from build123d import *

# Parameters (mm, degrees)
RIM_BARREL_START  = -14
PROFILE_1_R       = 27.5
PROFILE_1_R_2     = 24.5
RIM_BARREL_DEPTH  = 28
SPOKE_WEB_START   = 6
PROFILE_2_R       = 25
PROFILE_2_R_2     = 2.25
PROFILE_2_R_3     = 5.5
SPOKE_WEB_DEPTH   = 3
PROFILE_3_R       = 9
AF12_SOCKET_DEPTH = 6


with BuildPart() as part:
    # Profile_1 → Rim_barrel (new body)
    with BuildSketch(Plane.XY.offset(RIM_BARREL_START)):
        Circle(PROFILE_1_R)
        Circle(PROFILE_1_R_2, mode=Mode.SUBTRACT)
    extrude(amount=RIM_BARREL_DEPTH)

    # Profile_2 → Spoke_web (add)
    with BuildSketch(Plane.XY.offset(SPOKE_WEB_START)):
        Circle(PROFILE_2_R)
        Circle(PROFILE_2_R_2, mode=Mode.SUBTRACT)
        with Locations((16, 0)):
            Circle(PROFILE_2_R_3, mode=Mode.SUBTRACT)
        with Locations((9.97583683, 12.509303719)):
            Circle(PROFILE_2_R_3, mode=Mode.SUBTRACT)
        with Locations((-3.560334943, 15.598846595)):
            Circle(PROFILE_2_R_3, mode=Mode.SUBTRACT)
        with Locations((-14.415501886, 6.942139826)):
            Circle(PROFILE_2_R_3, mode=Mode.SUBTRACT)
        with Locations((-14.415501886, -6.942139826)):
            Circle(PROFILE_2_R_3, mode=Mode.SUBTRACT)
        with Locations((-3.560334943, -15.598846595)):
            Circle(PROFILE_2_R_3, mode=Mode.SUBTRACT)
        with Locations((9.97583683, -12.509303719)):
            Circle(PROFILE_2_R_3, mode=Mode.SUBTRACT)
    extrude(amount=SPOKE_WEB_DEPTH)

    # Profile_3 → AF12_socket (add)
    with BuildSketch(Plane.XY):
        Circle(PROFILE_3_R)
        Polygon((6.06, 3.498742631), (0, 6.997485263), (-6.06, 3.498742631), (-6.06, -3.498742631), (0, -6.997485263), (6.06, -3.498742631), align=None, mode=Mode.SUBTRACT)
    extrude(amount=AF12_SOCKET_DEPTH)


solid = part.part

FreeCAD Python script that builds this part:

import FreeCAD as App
import Part
import Sketcher
Q = App.Units.Quantity


def add_polygon(sketch, points):
    """Adds a closed chain of lines whose ends are joined by coincident constraints."""
    first, n = sketch.GeometryCount, len(points)
    for a, b in zip(points, points[1:] + points[:1]):
        sketch.addGeometry(Part.LineSegment(App.Vector(*a, 0), App.Vector(*b, 0)), False)
    for i in range(n):
        sketch.addConstraint(Sketcher.Constraint("Coincident", first + i, 2, first + (i + 1) % n, 1))

doc = App.newDocument("Part")
body = doc.addObject("PartDesign::Body", "Body")

sketch1 = doc.addObject("Sketcher::SketchObject", "Sketch")
body.addObject(sketch1)
sketch1.AttachmentSupport = (doc.XY_Plane, [""])
sketch1.MapMode = "FlatFace"
sketch1.AttachmentOffset = App.Placement(App.Vector(0, 0, -14), App.Rotation())
sketch1.addGeometry([
    Part.Circle(App.Vector(0, 0, 0), App.Vector(0, 0, 1), 28),
    Part.Circle(App.Vector(0, 0, 0), App.Vector(0, 0, 1), 24),
], False)
sketch1.addConstraint([
    Sketcher.Constraint("Coincident", 0, 3, -1, 1),
    Sketcher.Constraint("Coincident", 1, 3, -1, 1),
    Sketcher.Constraint("Diameter", 0, Q("55 mm")),
    Sketcher.Constraint("Diameter", 1, Q("49 mm")),
])
pad1 = doc.addObject("PartDesign::Pad", "Pad")
body.addObject(pad1)
pad1.Profile = sketch1
pad1.Length = 28

sketch2 = doc.addObject("Sketcher::SketchObject", "Sketch001")
body.addObject(sketch2)
sketch2.AttachmentSupport = (doc.XY_Plane, [""])
sketch2.MapMode = "FlatFace"
sketch2.AttachmentOffset = App.Placement(App.Vector(0, 0, 6), App.Rotation())
sketch2.addGeometry([
    Part.Circle(App.Vector(0, 0, 0), App.Vector(0, 0, 1), 25),
    Part.Circle(App.Vector(-3.6, -15.6, 0), App.Vector(0, 0, 1), 5.5),
    Part.Circle(App.Vector(-14.4, -6.9, 0), App.Vector(0, 0, 1), 5.5),
    Part.Circle(App.Vector(10, -12.5, 0), App.Vector(0, 0, 1), 5.5),
    Part.Circle(App.Vector(-14.4, 6.9, 0), App.Vector(0, 0, 1), 5.5),
    Part.Circle(App.Vector(0, 0, 0), App.Vector(0, 0, 1), 2.2),
    Part.Circle(App.Vector(-3.6, 15.6, 0), App.Vector(0, 0, 1), 5.5),
    Part.Circle(App.Vector(16, 0, 0), App.Vector(0, 0, 1), 5.5),
    Part.Circle(App.Vector(10, 12.5, 0), App.Vector(0, 0, 1), 5.5),
], False)
sketch2.addConstraint([
    Sketcher.Constraint("Coincident", 0, 3, -1, 1),
    Sketcher.Constraint("Coincident", 5, 3, -1, 1),
    Sketcher.Constraint("Equal", 1, 2),
    Sketcher.Constraint("Equal", 2, 3),
    Sketcher.Constraint("Equal", 3, 4),
    Sketcher.Constraint("Equal", 4, 6),
    Sketcher.Constraint("Equal", 6, 7),
    Sketcher.Constraint("Equal", 7, 8),
    Sketcher.Constraint("Symmetric", 2, 3, 4, 3, -1),
    Sketcher.Constraint("Symmetric", 1, 3, 6, 3, -1),
    Sketcher.Constraint("Symmetric", 3, 3, 8, 3, -1),
    Sketcher.Constraint("PointOnObject", 7, 3, -1),
    Sketcher.Constraint("Diameter", 0, Q("50 mm")),
    Sketcher.Constraint("Diameter", 1, Q("11 mm")),
    Sketcher.Constraint("Diameter", 5, Q("4.5 mm")),
    Sketcher.Constraint("DistanceX", -1, 1, 7, 3, Q("16 mm")),
    Sketcher.Constraint("DistanceX", 2, 3, -1, 1, Q("14.415502 mm")),
    Sketcher.Constraint("DistanceY", 2, 3, -1, 1, Q("6.94214 mm")),
    Sketcher.Constraint("DistanceX", 1, 3, 3, 3, Q("13.536172 mm")),
    Sketcher.Constraint("DistanceX", 2, 3, 3, 3, Q("24.391339 mm")),
    Sketcher.Constraint("DistanceY", 3, 3, 6, 3, Q("28.10815 mm")),
    Sketcher.Constraint("DistanceY", 1, 3, -1, 1, Q("15.598847 mm")),
])
pad2 = doc.addObject("PartDesign::Pad", "Pad001")
body.addObject(pad2)
pad2.Profile = sketch2
pad2.Length = 3

sketch3 = doc.addObject("Sketcher::SketchObject", "Sketch002")
body.addObject(sketch3)
sketch3.AttachmentSupport = (doc.XY_Plane, [""])
sketch3.MapMode = "FlatFace"
sketch3.addGeometry(Part.Circle(App.Vector(0, 0, 0), App.Vector(0, 0, 1), 9), False)
add_polygon(sketch3, [(0, 7), (6, 3), (6, -3), (0, -7), (-6, -3), (-6, 3)])
sketch3.addConstraint([
    Sketcher.Constraint("Vertical", 2),
    Sketcher.Constraint("Vertical", 5),
    Sketcher.Constraint("Coincident", 0, 3, -1, 1),
    Sketcher.Constraint("Symmetric", 1, 2, 4, 2, -1, 1),
    Sketcher.Constraint("Symmetric", 3, 2, 6, 2, -1, 1),
    Sketcher.Constraint("PointOnObject", 3, 2, -2),
    Sketcher.Constraint("Parallel", 3, 6),
    Sketcher.Constraint("Horizontal", 2, 2, 4, 2),
    Sketcher.Constraint("Diameter", 0, Q("18 mm")),
    Sketcher.Constraint("Angle", 1, Q("-30 deg")),
    Sketcher.Constraint("DistanceX", -1, 1, 1, 2, Q("6.06 mm")),
    Sketcher.Constraint("DistanceY", 2, 2, 2, 1, Q("6.997485 mm")),
])
pad3 = doc.addObject("PartDesign::Pad", "Pad002")
body.addObject(pad3)
pad3.Profile = sketch3
pad3.Length = 6

doc.recompute()
